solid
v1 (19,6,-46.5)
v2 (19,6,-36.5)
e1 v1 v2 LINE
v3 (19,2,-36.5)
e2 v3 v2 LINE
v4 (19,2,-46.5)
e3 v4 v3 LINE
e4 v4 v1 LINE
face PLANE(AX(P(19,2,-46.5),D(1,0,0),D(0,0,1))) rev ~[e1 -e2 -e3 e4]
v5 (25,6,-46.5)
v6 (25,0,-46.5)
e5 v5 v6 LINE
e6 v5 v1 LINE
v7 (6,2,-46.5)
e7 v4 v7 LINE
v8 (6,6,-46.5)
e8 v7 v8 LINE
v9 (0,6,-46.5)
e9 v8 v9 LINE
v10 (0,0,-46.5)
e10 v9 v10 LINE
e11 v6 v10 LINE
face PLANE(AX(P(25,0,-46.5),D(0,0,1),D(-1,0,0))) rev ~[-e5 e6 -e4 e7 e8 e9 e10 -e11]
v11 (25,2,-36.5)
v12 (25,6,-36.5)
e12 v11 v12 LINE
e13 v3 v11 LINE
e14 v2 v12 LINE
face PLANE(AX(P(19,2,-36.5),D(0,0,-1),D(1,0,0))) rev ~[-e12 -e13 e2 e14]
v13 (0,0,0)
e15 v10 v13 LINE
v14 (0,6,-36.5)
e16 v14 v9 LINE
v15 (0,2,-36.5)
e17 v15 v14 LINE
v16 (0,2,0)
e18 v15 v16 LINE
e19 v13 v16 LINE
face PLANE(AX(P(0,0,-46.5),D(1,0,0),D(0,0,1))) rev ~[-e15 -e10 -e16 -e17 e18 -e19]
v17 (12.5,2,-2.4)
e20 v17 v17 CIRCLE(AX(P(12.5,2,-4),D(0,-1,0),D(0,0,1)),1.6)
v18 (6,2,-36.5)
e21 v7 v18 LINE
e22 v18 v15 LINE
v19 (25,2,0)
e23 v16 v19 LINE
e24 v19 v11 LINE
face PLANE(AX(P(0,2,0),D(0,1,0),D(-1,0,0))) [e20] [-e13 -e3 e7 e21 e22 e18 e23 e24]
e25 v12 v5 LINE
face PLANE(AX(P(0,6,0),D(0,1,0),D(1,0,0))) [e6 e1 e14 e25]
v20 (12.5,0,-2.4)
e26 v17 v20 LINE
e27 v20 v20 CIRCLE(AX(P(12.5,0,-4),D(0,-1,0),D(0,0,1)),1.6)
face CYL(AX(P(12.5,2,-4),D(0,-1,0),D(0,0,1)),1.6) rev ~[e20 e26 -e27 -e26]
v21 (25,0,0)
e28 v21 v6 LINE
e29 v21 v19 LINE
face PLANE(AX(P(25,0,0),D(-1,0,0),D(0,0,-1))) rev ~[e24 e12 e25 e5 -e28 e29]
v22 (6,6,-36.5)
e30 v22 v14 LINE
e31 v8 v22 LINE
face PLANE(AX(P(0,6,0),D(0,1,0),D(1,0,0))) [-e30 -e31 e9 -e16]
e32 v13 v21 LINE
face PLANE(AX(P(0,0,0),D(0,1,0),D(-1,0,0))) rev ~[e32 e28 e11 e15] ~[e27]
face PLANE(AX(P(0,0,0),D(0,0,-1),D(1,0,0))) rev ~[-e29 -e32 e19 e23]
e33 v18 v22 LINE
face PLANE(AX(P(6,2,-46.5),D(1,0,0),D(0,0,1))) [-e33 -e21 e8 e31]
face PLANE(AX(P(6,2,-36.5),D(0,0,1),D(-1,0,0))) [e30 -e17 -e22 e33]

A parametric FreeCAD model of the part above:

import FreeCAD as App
import Part
import Sketcher
from FreeCAD import Vector

doc = App.newDocument("Part")
body = doc.addObject("PartDesign::Body", "Body")

# Sketch on XZ plane
sketch1 = body.newObject("Sketcher::SketchObject", "Sketch")
sketch1.AttachmentSupport = (doc.getObject("XZ_Plane"), [""])
sketch1.MapMode = "FlatFace"
sketch1.addGeometry([
    Part.LineSegment(Vector(0, -46, 0), Vector(0, 0, 0)),
    Part.LineSegment(Vector(0, 0, 0), Vector(25, 0, 0)),
    Part.LineSegment(Vector(25, 0, 0), Vector(25, -46, 0)),
    Part.LineSegment(Vector(25, -46, 0), Vector(0, -46, 0)),
], False)
sketch1.addConstraint([
    Sketcher.Constraint("Coincident", 0, 2, 1, 1),
    Sketcher.Constraint("Coincident", 1, 2, 2, 1),
    Sketcher.Constraint("Coincident", 2, 2, 3, 1),
    Sketcher.Constraint("Coincident", 3, 2, 0, 1),
    Sketcher.Constraint("Vertical", 0),
    Sketcher.Constraint("Horizontal", 1),
    Sketcher.Constraint("Vertical", 2),
    Sketcher.Constraint("Horizontal", 3),
    Sketcher.Constraint("Coincident", 0, 2, -1, 1),
    Sketcher.Constraint("DistanceX", 1, 1, 1, 2, 25.0),
    Sketcher.Constraint("DistanceY", 0, 1, 0, 2, 46.5),
])
pad1 = body.newObject("PartDesign::Pad", "Pad")
pad1.Profile = sketch1
pad1.Length = 2
pad1.Reversed = True

# Sketch on XZ plane
sketch2 = body.newObject("Sketcher::SketchObject", "Sketch001")
sketch2.AttachmentSupport = (doc.getObject("XZ_Plane"), [""])
sketch2.MapMode = "FlatFace"
sketch2.AttachmentOffset = App.Placement(Vector(0, 0, -2), App.Rotation())
sketch2.addGeometry([
    Part.LineSegment(Vector(25, -36, 0), Vector(25, -46, 0)),  # 0
    Part.LineSegment(Vector(25, -46, 0), Vector(19, -46, 0)),  # 1
    Part.LineSegment(Vector(19, -46, 0), Vector(19, -36, 0)),  # 2
    Part.LineSegment(Vector(19, -36, 0), Vector(25, -36, 0)),  # 3
    Part.LineSegment(Vector(6, -36, 0), Vector(6, -46, 0)),  # 4
    Part.LineSegment(Vector(6, -46, 0), Vector(0, -46, 0)),  # 5
    Part.LineSegment(Vector(0, -46, 0), Vector(0, -36, 0)),  # 6
    Part.LineSegment(Vector(0, -36, 0), Vector(6, -36, 0)),  # 7
], False)
sketch2.addConstraint([
    Sketcher.Constraint("Coincident", 0, 2, 1, 1),
    Sketcher.Constraint("Coincident", 1, 2, 2, 1),
    Sketcher.Constraint("Coincident", 2, 2, 3, 1),
    Sketcher.Constraint("Coincident", 3, 2, 0, 1),
    Sketcher.Constraint("Coincident", 4, 2, 5, 1),
    Sketcher.Constraint("Coincident", 5, 2, 6, 1),
    Sketcher.Constraint("Coincident", 6, 2, 7, 1),
    Sketcher.Constraint("Coincident", 7, 2, 4, 1),
    Sketcher.Constraint("Vertical", 0),
    Sketcher.Constraint("Horizontal", 1),
    Sketcher.Constraint("Vertical", 2),
    Sketcher.Constraint("Horizontal", 3),
    Sketcher.Constraint("Vertical", 4),
    Sketcher.Constraint("Horizontal", 5),
    Sketcher.Constraint("Vertical", 6),
    Sketcher.Constraint("Horizontal", 7),
    Sketcher.Constraint("PointOnObject", 5, 2, -2),
    Sketcher.Constraint("Horizontal", 1, 2, 4, 2),
    Sketcher.Constraint("Horizontal", 3, 2, 6, 2),
    Sketcher.Constraint("Equal", 3, 5),
    Sketcher.Constraint("DistanceX", 1, 2, 1, 1, 6.0),
    Sketcher.Constraint("DistanceY", 0, 2, 0, 1, 10.0),
    Sketcher.Constraint("DistanceX", -1, 1, 0, 2, 25.0),
    Sketcher.Constraint("DistanceY", 0, 2, -1, 1, 46.5),
])
pad2 = body.newObject("PartDesign::Pad", "Pad001")
pad2.Profile = sketch2
pad2.Length = 4
pad2.Reversed = True

# Sketch on XZ plane
sketch3 = body.newObject("Sketcher::SketchObject", "Sketch002")
sketch3.AttachmentSupport = (doc.getObject("XZ_Plane"), [""])
sketch3.MapMode = "FlatFace"
sketch3.AttachmentOffset = App.Placement(Vector(0, 0, -2), App.Rotation())
sketch3.addGeometry(Part.Circle(Vector(12.5, -4, 0), Vector(0, 0, 1), 1.6), False)
sketch3.addConstraint([
    Sketcher.Constraint("Diameter", 0, 3.2),
    Sketcher.Constraint("DistanceY", 0, 3, -1, 1, 4.0),
    Sketcher.Constraint("DistanceX", -1, 1, 0, 3, 12.5),
])
doc.recompute()
hole = body.newObject("PartDesign::Hole", "Hole")
hole.Profile = sketch3
hole.ThreadType = "None"
hole.Diameter = 3.2
hole.DepthType = "ThroughAll"
hole.Reversed = True

doc.recompute()
